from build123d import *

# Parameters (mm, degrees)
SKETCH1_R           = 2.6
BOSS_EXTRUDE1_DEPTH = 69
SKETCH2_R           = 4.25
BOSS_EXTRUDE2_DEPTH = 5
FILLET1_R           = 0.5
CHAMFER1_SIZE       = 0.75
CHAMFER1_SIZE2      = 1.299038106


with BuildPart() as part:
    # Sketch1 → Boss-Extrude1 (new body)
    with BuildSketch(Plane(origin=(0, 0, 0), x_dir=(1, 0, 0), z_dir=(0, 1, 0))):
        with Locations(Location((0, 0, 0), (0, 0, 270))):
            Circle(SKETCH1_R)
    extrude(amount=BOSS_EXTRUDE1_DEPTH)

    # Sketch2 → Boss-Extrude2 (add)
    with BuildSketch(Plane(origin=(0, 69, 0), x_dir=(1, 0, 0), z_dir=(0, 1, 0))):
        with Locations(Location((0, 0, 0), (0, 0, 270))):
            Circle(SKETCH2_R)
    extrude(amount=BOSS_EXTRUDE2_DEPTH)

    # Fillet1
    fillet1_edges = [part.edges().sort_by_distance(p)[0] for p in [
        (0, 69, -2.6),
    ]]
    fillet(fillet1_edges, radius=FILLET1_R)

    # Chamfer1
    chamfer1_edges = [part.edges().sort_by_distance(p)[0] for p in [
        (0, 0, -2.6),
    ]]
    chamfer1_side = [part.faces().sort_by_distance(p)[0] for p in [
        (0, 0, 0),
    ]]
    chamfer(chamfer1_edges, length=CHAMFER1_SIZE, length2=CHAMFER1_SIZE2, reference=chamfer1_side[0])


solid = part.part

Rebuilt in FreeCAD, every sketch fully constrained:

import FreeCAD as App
import Part
import Sketcher

V = App.Vector
Q = App.Units.Quantity


def edges_at(feature, points):
    """Names of the edges that pass closest to the given points."""
    edges = feature.Shape.Edges
    near = lambda p: min(range(len(edges)), key=lambda i: edges[i].distToShape(Part.Vertex(*p))[0])
    return sorted({f"Edge{near(p) + 1}" for p in points})

doc = App.newDocument("Part")
body = doc.addObject("PartDesign::Body", "Body")

sketch1 = body.newObject("Sketcher::SketchObject", "Sketch")
sketch1.AttachmentSupport = (doc.getObject("XZ_Plane"), [""])
sketch1.MapMode = "FlatFace"
sketch1.addGeometry(Part.Circle(V(0, 0, 0), V(0, 0, 1), 2.6), False)
sketch1.addConstraint(Sketcher.Constraint("Coincident", 0, 3, -1, 1))
sketch1.addConstraint(Sketcher.Constraint("Diameter", 0, Q("5.2 mm")))
pad1 = body.newObject("PartDesign::Pad", "Pad")
pad1.Profile = sketch1
pad1.Length = 69
pad1.Reversed = True

sketch2 = body.newObject("Sketcher::SketchObject", "Sketch001")
sketch2.AttachmentSupport = (doc.getObject("XZ_Plane"), [""])
sketch2.MapMode = "FlatFace"
sketch2.AttachmentOffset = App.Placement(V(0, 0, -69), App.Rotation())
sketch2.addGeometry(Part.Circle(V(0, 0, 0), V(0, 0, 1), 4.2), False)
sketch2.addConstraint(Sketcher.Constraint("Coincident", 0, 3, -1, 1))
sketch2.addConstraint(Sketcher.Constraint("Diameter", 0, Q("8.5 mm")))
pad2 = body.newObject("PartDesign::Pad", "Pad001")
pad2.Profile = sketch2
pad2.Length = 5
pad2.Reversed = True
doc.recompute()

fillet = body.newObject("PartDesign::Fillet", "Fillet")
fillet.Base = (pad2, edges_at(pad2, [(0, 69, -2.6)]))
fillet.Radius = 0.5
doc.recompute()

chamfer = body.newObject("PartDesign::Chamfer", "Chamfer")
chamfer.Base = (fillet, edges_at(fillet, [(0, 0, -2.6)]))
chamfer.ChamferType = "Two distances"
chamfer.Size = 0.75
chamfer.Size2 = 1.299038
chamfer.FlipDirection = True

doc.recompute()
